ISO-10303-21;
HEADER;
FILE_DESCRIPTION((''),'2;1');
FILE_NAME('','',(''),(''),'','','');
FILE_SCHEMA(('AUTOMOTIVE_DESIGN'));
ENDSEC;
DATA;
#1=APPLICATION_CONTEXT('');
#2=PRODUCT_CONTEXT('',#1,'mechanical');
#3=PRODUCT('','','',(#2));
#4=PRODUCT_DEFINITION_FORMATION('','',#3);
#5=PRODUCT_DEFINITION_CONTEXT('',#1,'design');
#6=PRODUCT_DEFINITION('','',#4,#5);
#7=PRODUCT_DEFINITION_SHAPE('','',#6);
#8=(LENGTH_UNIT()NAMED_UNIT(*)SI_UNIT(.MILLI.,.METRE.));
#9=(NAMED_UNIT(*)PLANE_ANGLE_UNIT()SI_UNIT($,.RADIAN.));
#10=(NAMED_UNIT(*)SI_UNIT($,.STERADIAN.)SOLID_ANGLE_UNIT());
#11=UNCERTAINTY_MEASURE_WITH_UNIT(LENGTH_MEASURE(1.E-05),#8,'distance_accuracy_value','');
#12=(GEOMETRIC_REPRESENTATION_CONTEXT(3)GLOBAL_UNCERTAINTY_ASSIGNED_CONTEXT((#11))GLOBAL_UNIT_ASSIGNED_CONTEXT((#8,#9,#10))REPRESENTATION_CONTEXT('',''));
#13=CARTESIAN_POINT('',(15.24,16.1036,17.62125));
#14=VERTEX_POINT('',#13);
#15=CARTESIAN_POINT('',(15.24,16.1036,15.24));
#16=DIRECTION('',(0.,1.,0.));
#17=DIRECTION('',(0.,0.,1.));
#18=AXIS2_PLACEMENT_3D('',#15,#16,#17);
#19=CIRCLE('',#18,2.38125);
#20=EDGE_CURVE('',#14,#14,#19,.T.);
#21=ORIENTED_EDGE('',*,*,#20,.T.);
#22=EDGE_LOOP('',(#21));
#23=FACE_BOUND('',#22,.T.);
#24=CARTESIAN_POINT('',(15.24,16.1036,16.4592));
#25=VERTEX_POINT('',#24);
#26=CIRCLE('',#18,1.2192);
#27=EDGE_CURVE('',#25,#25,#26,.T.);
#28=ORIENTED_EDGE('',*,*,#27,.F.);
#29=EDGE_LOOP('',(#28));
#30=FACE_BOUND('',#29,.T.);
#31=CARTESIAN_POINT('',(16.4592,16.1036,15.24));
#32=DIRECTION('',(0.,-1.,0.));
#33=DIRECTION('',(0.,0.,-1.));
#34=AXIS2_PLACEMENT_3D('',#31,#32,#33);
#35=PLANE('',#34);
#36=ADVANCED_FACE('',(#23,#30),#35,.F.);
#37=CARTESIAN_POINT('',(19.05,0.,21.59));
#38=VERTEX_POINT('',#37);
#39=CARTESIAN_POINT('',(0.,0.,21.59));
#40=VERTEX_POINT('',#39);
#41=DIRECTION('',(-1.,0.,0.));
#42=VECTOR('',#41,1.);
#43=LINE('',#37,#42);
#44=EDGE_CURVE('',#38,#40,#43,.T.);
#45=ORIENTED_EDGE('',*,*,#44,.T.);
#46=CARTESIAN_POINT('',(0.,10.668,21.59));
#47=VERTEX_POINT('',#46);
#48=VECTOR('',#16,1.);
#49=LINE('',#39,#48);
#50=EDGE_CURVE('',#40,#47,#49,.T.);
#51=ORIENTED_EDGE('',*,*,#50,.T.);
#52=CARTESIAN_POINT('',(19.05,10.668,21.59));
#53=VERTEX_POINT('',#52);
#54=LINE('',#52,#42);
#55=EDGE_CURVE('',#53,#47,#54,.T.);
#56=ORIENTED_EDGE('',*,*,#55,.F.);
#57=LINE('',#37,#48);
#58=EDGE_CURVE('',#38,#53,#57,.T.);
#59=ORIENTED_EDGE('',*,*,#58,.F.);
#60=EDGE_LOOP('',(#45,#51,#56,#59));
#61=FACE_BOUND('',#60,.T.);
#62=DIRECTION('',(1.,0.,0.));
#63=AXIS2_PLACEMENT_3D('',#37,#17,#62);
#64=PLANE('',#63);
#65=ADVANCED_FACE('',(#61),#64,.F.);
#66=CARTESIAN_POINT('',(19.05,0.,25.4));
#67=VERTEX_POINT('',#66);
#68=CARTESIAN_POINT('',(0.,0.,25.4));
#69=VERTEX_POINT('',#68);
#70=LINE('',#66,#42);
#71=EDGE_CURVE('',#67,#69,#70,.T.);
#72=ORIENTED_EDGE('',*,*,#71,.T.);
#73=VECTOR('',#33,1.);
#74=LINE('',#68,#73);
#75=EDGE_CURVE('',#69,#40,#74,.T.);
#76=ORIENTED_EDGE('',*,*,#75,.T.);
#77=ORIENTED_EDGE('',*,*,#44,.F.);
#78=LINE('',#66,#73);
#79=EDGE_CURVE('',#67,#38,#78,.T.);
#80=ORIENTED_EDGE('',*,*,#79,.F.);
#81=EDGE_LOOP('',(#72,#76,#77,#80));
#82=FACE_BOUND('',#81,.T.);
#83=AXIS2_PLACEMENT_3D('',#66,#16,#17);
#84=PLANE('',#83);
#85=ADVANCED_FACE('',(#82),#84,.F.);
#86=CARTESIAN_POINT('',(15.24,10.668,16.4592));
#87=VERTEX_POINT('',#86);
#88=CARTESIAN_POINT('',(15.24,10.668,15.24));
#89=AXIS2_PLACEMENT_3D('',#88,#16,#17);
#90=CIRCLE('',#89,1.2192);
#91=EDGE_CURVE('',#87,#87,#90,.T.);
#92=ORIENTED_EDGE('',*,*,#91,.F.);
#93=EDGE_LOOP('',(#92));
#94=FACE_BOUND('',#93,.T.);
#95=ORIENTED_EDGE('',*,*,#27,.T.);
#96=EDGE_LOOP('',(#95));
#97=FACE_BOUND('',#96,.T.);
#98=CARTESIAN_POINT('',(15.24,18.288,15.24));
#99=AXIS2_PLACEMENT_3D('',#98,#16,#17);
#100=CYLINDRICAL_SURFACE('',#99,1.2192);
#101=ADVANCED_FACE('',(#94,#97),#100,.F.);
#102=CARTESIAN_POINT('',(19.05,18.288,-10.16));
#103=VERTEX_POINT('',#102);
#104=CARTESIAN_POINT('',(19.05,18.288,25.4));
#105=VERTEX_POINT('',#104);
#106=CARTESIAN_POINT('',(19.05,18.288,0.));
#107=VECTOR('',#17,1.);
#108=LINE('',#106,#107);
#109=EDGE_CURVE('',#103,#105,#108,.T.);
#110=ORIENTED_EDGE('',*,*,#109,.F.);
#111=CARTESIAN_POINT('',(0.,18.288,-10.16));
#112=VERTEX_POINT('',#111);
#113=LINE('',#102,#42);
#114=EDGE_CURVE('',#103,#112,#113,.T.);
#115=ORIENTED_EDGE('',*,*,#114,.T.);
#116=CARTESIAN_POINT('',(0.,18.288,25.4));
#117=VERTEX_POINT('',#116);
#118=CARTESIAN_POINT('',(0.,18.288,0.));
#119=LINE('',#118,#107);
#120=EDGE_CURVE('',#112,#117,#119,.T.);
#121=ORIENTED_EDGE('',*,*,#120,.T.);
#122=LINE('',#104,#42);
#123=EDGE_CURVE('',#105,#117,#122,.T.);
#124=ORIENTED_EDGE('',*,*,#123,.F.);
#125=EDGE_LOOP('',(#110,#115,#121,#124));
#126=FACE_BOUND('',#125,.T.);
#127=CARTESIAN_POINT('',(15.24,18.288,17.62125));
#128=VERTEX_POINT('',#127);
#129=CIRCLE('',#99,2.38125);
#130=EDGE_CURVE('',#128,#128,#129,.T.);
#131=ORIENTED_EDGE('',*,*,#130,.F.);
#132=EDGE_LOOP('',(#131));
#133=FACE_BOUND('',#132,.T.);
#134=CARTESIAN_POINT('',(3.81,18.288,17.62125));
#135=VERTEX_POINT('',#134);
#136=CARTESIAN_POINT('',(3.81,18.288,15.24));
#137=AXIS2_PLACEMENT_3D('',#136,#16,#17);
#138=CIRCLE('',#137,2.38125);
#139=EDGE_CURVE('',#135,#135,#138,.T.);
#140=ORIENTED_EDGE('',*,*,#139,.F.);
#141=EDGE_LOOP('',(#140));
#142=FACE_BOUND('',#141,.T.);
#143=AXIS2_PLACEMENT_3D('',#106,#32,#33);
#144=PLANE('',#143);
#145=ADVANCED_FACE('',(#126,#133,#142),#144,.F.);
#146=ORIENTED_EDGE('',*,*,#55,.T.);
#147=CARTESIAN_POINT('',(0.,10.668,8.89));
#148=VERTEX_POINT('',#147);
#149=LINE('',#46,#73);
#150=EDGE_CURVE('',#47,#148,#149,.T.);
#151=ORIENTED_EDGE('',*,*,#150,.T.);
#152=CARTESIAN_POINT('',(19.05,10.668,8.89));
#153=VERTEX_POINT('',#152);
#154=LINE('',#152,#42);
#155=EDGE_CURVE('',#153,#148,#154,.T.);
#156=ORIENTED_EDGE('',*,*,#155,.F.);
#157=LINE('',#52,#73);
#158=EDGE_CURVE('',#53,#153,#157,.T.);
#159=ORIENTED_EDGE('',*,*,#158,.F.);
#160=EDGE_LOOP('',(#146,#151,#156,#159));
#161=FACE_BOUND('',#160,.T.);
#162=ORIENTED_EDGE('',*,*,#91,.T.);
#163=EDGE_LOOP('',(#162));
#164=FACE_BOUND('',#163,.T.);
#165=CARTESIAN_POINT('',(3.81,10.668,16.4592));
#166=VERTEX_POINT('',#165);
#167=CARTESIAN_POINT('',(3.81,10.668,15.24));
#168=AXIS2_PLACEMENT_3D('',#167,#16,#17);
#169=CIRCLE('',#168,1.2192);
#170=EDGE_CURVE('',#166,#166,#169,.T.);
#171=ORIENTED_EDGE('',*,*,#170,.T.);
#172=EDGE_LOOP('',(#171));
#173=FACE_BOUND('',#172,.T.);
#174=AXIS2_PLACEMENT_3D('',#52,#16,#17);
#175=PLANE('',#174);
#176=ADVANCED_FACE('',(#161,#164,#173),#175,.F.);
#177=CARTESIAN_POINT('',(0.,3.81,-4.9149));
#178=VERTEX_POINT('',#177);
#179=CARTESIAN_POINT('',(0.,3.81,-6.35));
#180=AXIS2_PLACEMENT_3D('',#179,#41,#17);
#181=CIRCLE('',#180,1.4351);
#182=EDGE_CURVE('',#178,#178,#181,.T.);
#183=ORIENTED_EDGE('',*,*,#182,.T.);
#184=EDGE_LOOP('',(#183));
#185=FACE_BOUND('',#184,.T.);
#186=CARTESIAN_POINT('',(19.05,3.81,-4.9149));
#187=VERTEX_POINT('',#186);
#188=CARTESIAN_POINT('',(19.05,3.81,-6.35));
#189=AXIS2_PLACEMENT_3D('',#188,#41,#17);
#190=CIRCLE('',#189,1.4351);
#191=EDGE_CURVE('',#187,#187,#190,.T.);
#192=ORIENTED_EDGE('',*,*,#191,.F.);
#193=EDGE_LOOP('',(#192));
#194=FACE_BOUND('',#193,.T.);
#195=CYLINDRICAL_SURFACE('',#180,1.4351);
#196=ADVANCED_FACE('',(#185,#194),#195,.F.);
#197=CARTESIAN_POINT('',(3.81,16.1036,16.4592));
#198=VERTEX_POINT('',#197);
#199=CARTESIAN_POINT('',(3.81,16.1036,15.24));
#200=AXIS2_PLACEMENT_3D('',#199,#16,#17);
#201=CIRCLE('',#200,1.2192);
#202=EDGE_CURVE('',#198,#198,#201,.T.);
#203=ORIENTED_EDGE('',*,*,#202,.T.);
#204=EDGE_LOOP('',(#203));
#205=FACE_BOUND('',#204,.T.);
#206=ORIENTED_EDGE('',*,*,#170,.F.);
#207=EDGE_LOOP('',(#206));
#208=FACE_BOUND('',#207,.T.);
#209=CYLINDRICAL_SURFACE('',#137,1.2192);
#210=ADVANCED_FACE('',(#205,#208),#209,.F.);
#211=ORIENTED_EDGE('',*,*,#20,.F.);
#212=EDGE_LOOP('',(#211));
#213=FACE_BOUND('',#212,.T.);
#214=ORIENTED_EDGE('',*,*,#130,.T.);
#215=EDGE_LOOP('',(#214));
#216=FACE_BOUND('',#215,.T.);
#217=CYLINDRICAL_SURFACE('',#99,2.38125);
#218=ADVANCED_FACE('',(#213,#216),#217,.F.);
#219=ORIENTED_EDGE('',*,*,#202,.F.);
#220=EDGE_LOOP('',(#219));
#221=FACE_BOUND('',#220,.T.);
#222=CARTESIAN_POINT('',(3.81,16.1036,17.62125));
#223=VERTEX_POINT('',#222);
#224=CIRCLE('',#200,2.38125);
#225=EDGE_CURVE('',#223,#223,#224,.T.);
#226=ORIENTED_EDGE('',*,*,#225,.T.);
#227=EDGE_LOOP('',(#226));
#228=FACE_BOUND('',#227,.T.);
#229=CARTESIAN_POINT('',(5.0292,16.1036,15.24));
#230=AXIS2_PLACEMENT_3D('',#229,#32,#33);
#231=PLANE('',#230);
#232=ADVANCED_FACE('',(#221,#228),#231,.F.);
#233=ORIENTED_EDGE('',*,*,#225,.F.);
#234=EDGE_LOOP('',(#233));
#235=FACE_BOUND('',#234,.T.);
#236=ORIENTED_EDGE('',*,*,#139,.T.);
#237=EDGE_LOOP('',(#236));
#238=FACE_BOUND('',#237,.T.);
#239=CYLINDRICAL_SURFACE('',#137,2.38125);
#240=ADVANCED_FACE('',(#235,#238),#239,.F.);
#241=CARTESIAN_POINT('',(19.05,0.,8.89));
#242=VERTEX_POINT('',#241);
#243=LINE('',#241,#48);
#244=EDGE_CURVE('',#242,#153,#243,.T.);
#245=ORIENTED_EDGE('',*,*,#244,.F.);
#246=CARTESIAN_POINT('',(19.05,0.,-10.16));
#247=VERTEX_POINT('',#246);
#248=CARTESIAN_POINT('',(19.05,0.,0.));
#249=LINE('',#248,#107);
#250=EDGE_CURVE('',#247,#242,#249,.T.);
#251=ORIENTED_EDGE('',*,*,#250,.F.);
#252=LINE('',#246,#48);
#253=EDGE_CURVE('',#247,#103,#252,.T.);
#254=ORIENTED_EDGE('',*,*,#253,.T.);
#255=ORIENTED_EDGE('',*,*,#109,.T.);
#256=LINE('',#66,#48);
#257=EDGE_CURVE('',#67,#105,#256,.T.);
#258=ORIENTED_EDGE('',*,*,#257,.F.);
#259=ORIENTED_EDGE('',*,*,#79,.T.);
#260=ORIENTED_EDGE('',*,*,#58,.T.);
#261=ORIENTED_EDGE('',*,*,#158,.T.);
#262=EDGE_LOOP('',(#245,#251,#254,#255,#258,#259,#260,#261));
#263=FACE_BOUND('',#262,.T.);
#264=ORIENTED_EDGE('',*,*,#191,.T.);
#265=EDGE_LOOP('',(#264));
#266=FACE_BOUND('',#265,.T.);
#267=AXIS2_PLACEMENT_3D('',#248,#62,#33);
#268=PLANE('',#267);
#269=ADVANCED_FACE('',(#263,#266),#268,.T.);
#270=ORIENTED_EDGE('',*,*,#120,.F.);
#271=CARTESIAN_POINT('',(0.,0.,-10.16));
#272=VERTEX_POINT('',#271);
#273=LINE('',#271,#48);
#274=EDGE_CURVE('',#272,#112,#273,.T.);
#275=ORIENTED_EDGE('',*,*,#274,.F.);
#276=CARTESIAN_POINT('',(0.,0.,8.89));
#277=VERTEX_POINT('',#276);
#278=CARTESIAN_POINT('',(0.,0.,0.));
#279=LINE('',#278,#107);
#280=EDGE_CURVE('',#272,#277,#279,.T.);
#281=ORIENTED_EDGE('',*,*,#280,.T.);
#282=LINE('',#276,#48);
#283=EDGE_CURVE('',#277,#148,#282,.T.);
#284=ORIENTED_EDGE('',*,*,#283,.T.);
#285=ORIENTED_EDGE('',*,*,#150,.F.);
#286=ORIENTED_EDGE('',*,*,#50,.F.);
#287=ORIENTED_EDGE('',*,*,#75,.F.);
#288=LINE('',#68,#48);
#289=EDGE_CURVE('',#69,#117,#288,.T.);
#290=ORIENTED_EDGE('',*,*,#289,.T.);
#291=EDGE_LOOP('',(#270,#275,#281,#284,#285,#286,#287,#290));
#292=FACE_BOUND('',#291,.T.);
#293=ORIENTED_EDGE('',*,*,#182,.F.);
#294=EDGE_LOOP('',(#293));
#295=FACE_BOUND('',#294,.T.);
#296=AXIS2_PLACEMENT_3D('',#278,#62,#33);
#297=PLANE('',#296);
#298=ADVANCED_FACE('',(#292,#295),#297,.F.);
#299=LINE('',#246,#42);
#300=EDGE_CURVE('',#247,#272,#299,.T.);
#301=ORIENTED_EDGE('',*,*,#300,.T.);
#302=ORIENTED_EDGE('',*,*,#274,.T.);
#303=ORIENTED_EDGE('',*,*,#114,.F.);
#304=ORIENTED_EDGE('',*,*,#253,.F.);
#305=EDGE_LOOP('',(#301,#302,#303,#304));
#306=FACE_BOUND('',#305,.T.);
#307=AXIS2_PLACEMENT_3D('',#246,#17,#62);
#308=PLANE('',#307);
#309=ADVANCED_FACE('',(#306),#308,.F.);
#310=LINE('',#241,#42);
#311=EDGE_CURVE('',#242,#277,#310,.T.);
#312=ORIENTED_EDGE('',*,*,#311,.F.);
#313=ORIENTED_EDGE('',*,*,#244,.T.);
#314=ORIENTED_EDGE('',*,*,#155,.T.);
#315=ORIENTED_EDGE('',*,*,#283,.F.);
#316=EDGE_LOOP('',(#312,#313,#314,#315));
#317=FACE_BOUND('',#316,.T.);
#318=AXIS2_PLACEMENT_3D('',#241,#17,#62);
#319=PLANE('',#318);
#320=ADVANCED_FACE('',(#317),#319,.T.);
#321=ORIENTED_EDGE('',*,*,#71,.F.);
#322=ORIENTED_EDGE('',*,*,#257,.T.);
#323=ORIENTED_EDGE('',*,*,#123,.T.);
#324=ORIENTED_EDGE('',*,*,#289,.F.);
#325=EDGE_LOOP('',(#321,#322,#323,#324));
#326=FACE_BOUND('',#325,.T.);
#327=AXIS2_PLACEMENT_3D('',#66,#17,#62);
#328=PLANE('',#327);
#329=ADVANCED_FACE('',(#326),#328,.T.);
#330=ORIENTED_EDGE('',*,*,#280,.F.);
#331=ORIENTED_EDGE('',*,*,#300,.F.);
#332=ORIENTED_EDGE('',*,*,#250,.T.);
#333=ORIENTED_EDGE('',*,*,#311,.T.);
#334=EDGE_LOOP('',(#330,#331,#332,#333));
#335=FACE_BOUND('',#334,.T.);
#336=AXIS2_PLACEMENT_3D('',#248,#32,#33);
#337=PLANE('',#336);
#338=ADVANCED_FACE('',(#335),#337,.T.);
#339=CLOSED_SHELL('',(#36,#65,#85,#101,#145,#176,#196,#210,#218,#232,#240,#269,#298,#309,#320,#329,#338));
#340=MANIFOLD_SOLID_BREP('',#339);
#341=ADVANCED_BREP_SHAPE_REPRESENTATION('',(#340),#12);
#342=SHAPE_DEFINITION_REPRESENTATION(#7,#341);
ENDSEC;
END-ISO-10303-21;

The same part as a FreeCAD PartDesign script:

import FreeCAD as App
import Part
import Sketcher
Q = App.Units.Quantity


def add_polygon(sketch, points):
    """Adds a closed chain of lines whose ends are joined by coincident constraints."""
    first, n = sketch.GeometryCount, len(points)
    for a, b in zip(points, points[1:] + points[:1]):
        sketch.addGeometry(Part.LineSegment(App.Vector(*a, 0), App.Vector(*b, 0)), False)
    for i in range(n):
        sketch.addConstraint(Sketcher.Constraint("Coincident", first + i, 2, first + (i + 1) % n, 1))

doc = App.newDocument("Part")
body = doc.addObject("PartDesign::Body", "Body")

sketch1 = doc.addObject("Sketcher::SketchObject", "Sketch")
body.addObject(sketch1)
sketch1.AttachmentSupport = (doc.YZ_Plane, [""])
sketch1.MapMode = "FlatFace"
add_polygon(sketch1, [(0, 8.89), (0, -10.16), (18.288, -10.16), (18.288, 25.4), (0, 25.4), (0, 21.59), (10.668, 21.59), (10.668, 8.89)])
sketch1.addConstraint([
    Sketcher.Constraint("Vertical", 0),
    Sketcher.Constraint("Horizontal", 1),
    Sketcher.Constraint("Vertical", 2),
    Sketcher.Constraint("Horizontal", 3),
    Sketcher.Constraint("Vertical", 4),
    Sketcher.Constraint("Horizontal", 5),
    Sketcher.Constraint("Vertical", 6),
    Sketcher.Constraint("Horizontal", 7),
    Sketcher.Constraint("PointOnObject", 0, 2, -2),
    Sketcher.Constraint("PointOnObject", 3, 2, -2),
    Sketcher.Constraint("DistanceY", 2, 1, 2, 2, Q("1.4 in")),
    Sketcher.Constraint("DistanceY", 6, 2, 6, 1, Q("0.5 in")),
    Sketcher.Constraint("DistanceY", -1, 1, 2, 2, Q("1 in")),
    Sketcher.Constraint("DistanceX", 1, 1, 1, 2, Q("0.72 in")),
    Sketcher.Constraint("DistanceX", 5, 1, 5, 2, Q("0.42 in")),
    Sketcher.Constraint("DistanceY", 0, 2, 0, 1, Q("0.75 in")),
])
pad1 = doc.addObject("PartDesign::Pad", "Pad")
body.addObject(pad1)
pad1.Profile = sketch1
pad1.Length = Q("0.75 in")

sketch2 = doc.addObject("Sketcher::SketchObject", "Sketch001")
body.addObject(sketch2)
sketch2.AttachmentSupport = (doc.XZ_Plane, [""])
sketch2.MapMode = "FlatFace"
sketch2.AttachmentOffset = App.Placement(App.Vector(0, 0, -0.72 * 25.4), App.Rotation())
sketch2.addGeometry([
    Part.Circle(App.Vector(3.81, 15.24, 0), App.Vector(0, 0, 1), 1.2192),
    Part.Circle(App.Vector(15.24, 15.24, 0), App.Vector(0, 0, 1), 1.2192),
], False)
sketch2.addConstraint([
    Sketcher.Constraint("Equal", 0, 1),
    Sketcher.Constraint("Horizontal", 0, 3, 1, 3),
    Sketcher.Constraint("Diameter", 0, Q("0.096 in")),
    Sketcher.Constraint("DistanceY", -1, 1, 0, 3, Q("0.6 in")),
    Sketcher.Constraint("DistanceX", -1, 1, 1, 3, Q("0.6 in")),
    Sketcher.Constraint("DistanceX", -1, 1, 0, 3, Q("0.15 in")),
])
doc.recompute()
hole = doc.addObject("PartDesign::Hole", "Hole")
body.addObject(hole)
hole.Profile = sketch2
hole.ThreadType = "None"
hole.Diameter = Q("0.096 in")
hole.DepthType = "ThroughAll"
hole.HoleCutType = "Counterbore"
hole.HoleCutDiameter = Q("0.1875 in")
hole.HoleCutDepth = Q("0.086 in")
hole.Reversed = True

sketch3 = doc.addObject("Sketcher::SketchObject", "Sketch002")
body.addObject(sketch3)
sketch3.AttachmentSupport = (doc.YZ_Plane, [""])
sketch3.MapMode = "FlatFace"
sketch3.addGeometry(Part.Circle(App.Vector(3.81, -6.35, 0), App.Vector(0, 0, 1), 1.4351), False)
sketch3.addConstraint([
    Sketcher.Constraint("Diameter", 0, Q("0.113 in")),
    Sketcher.Constraint("DistanceX", -1, 1, 0, 3, Q("0.15 in")),
    Sketcher.Constraint("DistanceY", 0, 3, -1, 1, Q("0.25 in")),
])
doc.recompute()
hole2 = doc.addObject("PartDesign::Hole", "Hole001")
body.addObject(hole2)
hole2.Profile = sketch3
hole2.ThreadType = "None"
hole2.Diameter = Q("0.113 in")
hole2.DepthType = "ThroughAll"
hole2.Reversed = True

doc.recompute()
